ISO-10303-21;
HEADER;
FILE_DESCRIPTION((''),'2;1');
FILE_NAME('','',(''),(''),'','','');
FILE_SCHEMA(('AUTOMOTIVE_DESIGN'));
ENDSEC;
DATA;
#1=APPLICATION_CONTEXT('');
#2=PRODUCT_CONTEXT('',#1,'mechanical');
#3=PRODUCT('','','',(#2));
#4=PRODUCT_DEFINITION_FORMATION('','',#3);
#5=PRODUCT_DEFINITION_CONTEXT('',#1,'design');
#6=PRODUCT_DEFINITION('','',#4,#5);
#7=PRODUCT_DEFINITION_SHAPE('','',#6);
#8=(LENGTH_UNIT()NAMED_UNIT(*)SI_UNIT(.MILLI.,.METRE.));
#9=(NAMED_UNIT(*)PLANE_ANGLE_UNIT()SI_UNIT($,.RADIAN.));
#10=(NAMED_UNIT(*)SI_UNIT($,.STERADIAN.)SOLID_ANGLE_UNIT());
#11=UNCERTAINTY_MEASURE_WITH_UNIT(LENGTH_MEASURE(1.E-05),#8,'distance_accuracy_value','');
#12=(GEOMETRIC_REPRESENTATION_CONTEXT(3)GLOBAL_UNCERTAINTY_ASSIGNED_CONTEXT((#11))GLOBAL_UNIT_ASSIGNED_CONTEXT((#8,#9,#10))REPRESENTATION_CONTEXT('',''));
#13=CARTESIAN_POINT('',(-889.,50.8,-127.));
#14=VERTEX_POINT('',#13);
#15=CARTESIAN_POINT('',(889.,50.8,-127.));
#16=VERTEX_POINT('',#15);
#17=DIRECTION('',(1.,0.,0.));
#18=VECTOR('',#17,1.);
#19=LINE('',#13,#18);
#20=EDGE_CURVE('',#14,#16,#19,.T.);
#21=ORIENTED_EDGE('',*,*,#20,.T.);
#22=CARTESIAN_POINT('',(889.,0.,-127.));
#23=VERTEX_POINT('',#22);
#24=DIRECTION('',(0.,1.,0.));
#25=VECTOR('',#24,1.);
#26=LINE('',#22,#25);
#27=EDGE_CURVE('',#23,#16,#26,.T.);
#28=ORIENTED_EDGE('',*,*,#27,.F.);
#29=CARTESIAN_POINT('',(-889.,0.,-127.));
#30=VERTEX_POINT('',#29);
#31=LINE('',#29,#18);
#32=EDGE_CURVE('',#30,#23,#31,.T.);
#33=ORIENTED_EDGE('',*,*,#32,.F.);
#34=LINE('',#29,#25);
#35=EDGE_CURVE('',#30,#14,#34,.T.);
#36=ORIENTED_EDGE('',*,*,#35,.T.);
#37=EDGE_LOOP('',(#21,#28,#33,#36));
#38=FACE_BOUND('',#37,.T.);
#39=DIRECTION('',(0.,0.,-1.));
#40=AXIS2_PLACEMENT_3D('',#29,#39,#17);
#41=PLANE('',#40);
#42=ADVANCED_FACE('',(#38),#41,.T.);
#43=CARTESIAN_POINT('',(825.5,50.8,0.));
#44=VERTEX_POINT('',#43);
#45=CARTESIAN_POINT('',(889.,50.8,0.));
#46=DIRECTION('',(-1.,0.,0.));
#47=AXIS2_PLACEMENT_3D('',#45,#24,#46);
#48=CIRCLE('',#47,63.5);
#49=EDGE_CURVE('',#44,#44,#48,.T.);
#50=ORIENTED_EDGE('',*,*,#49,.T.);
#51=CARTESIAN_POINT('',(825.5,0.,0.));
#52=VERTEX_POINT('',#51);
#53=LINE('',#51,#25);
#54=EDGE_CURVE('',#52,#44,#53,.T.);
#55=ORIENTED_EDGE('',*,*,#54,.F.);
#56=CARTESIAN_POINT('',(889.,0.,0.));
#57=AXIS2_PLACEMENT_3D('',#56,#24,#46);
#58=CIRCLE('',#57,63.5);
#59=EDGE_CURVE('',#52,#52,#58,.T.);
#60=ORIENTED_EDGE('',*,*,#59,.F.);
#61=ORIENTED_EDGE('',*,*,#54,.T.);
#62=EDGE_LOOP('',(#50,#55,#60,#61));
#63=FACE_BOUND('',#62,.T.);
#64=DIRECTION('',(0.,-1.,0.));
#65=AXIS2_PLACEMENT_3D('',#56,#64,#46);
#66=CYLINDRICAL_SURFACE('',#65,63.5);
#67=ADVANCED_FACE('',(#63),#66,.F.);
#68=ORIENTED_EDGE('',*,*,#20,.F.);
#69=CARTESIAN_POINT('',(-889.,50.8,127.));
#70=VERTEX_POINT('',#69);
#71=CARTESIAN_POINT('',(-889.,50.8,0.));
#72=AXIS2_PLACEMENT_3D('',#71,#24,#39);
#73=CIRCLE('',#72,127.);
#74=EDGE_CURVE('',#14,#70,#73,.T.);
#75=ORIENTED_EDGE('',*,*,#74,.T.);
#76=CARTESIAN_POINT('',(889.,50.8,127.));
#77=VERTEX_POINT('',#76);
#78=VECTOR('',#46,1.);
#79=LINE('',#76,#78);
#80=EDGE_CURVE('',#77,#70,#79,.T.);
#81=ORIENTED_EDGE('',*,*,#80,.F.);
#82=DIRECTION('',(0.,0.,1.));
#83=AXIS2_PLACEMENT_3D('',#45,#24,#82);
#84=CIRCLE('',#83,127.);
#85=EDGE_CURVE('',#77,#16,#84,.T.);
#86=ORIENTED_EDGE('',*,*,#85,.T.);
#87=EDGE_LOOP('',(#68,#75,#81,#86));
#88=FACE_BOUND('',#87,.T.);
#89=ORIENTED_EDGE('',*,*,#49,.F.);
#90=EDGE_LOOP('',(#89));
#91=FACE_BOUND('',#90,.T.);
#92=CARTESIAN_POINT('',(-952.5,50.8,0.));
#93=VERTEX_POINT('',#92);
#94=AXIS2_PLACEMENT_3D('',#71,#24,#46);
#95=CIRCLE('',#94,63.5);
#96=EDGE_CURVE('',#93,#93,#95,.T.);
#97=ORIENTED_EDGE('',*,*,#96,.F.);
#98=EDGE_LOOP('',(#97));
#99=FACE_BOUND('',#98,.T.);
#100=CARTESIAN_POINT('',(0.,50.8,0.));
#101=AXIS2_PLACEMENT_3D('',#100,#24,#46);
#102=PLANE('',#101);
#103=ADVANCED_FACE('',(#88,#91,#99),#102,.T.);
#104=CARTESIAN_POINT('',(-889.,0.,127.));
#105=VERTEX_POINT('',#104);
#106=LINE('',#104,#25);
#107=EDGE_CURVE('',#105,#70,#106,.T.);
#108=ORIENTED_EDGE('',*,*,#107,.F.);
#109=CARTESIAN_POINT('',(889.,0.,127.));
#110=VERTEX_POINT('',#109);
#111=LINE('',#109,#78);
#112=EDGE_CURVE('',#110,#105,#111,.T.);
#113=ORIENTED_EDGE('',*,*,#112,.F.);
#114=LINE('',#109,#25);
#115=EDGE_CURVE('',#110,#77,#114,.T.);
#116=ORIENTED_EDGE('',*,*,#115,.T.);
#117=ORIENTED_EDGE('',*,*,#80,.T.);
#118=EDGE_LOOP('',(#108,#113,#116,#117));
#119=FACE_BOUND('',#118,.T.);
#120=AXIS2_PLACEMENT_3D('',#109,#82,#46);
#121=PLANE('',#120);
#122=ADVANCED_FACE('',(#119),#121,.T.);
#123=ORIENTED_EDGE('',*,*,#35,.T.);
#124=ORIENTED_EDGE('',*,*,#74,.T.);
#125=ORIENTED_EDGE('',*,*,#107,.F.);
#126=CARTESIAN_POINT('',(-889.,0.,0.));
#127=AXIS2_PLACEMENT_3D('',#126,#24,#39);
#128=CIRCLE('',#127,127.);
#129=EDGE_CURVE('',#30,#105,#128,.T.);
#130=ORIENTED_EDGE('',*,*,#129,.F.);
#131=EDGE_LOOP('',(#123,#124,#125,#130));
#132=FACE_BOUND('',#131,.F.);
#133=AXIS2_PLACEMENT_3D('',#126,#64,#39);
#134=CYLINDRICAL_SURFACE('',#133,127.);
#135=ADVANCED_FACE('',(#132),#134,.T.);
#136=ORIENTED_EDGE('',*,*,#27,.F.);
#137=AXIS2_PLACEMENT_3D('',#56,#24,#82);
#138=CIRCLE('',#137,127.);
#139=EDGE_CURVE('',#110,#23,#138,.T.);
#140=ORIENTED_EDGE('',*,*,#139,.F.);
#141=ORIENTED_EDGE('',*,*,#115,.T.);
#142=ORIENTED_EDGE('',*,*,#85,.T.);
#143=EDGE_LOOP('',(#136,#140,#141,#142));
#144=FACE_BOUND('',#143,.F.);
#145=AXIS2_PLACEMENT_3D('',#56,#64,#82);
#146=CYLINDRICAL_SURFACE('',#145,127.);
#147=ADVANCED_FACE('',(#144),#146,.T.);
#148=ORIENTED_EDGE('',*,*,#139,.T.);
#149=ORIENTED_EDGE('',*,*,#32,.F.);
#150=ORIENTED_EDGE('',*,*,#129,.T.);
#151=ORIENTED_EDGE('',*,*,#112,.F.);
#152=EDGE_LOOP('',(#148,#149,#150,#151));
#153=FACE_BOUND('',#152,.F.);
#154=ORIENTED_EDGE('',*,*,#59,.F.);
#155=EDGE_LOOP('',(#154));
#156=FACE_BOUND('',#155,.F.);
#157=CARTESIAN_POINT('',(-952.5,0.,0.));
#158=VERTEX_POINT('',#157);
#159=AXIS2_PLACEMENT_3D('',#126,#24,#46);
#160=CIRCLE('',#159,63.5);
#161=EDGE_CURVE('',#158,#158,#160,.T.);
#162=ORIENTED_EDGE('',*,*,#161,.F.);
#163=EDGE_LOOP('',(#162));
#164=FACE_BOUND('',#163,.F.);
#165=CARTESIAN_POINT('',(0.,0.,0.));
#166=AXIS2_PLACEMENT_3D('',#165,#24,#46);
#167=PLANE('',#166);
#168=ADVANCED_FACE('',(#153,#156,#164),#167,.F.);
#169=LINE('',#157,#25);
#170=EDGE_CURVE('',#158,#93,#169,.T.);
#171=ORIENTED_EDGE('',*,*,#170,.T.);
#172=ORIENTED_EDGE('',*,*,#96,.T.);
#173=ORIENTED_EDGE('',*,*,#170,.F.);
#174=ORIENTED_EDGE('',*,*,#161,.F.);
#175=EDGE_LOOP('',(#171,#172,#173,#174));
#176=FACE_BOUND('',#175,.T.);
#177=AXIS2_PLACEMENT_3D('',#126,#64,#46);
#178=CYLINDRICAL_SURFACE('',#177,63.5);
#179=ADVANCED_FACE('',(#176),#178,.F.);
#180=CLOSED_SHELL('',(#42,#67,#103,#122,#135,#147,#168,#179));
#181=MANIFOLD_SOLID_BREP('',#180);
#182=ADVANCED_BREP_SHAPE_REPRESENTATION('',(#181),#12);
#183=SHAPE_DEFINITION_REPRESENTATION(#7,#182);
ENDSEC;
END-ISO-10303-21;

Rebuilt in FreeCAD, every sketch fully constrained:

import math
import FreeCAD as App
import Part
import Sketcher
from FreeCAD import Vector
Q = App.Units.Quantity

doc = App.newDocument("Part")
body = doc.addObject("PartDesign::Body", "Body")

sketch1 = doc.addObject("Sketcher::SketchObject", "Sketch")
body.addObject(sketch1)
sketch1.AttachmentSupport = (doc.XZ_Plane, [""])
sketch1.MapMode = "FlatFace"
sketch1.addGeometry(Part.LineSegment(Vector(-889, 127, 0), Vector(889, 127, 0)), False)
sketch1.addGeometry(Part.ArcOfCircle(Part.Circle(Vector(889, 0, 0), Vector(0, 0, 1), 127), math.radians(-90), math.radians(90)), False)
sketch1.addGeometry(Part.LineSegment(Vector(889, -127, 0), Vector(-889, -127, 0)), False)
sketch1.addGeometry(Part.ArcOfCircle(Part.Circle(Vector(-889, 0, 0), Vector(0, 0, 1), 127), math.radians(90), math.radians(270)), False)
sketch1.addGeometry(Part.Circle(Vector(889, 0, 0), Vector(0, 0, 1), 63.5), False)
sketch1.addGeometry(Part.Circle(Vector(-889, 0, 0), Vector(0, 0, 1), 63.5), False)
sketch1.addConstraint(Sketcher.Constraint("Tangent", 0, 2, 1, 2))
sketch1.addConstraint(Sketcher.Constraint("Tangent", 1, 1, 2, 1))
sketch1.addConstraint(Sketcher.Constraint("Tangent", 2, 2, 3, 2))
sketch1.addConstraint(Sketcher.Constraint("Tangent", 3, 1, 0, 1))
sketch1.addConstraint(Sketcher.Constraint("Horizontal", 0))
sketch1.addConstraint(Sketcher.Constraint("Horizontal", 2))
sketch1.addConstraint(Sketcher.Constraint("Coincident", 4, 3, 1, 3))
sketch1.addConstraint(Sketcher.Constraint("Coincident", 5, 3, 3, 3))
sketch1.addConstraint(Sketcher.Constraint("Equal", 4, 5))
sketch1.addConstraint(Sketcher.Constraint("Symmetric", 1, 3, 3, 3, -1, 1))
sketch1.addConstraint(Sketcher.Constraint("Diameter", 4, Q("5 in")))
sketch1.addConstraint(Sketcher.Constraint("Radius", 1, Q("5 in")))
sketch1.addConstraint(Sketcher.Constraint("DistanceX", 0, 1, 0, 2, Q("70 in")))
pad1 = doc.addObject("PartDesign::Pad", "Pad")
body.addObject(pad1)
pad1.Profile = sketch1
pad1.Length = Q("2 in")
pad1.Reversed = True

doc.recompute()
